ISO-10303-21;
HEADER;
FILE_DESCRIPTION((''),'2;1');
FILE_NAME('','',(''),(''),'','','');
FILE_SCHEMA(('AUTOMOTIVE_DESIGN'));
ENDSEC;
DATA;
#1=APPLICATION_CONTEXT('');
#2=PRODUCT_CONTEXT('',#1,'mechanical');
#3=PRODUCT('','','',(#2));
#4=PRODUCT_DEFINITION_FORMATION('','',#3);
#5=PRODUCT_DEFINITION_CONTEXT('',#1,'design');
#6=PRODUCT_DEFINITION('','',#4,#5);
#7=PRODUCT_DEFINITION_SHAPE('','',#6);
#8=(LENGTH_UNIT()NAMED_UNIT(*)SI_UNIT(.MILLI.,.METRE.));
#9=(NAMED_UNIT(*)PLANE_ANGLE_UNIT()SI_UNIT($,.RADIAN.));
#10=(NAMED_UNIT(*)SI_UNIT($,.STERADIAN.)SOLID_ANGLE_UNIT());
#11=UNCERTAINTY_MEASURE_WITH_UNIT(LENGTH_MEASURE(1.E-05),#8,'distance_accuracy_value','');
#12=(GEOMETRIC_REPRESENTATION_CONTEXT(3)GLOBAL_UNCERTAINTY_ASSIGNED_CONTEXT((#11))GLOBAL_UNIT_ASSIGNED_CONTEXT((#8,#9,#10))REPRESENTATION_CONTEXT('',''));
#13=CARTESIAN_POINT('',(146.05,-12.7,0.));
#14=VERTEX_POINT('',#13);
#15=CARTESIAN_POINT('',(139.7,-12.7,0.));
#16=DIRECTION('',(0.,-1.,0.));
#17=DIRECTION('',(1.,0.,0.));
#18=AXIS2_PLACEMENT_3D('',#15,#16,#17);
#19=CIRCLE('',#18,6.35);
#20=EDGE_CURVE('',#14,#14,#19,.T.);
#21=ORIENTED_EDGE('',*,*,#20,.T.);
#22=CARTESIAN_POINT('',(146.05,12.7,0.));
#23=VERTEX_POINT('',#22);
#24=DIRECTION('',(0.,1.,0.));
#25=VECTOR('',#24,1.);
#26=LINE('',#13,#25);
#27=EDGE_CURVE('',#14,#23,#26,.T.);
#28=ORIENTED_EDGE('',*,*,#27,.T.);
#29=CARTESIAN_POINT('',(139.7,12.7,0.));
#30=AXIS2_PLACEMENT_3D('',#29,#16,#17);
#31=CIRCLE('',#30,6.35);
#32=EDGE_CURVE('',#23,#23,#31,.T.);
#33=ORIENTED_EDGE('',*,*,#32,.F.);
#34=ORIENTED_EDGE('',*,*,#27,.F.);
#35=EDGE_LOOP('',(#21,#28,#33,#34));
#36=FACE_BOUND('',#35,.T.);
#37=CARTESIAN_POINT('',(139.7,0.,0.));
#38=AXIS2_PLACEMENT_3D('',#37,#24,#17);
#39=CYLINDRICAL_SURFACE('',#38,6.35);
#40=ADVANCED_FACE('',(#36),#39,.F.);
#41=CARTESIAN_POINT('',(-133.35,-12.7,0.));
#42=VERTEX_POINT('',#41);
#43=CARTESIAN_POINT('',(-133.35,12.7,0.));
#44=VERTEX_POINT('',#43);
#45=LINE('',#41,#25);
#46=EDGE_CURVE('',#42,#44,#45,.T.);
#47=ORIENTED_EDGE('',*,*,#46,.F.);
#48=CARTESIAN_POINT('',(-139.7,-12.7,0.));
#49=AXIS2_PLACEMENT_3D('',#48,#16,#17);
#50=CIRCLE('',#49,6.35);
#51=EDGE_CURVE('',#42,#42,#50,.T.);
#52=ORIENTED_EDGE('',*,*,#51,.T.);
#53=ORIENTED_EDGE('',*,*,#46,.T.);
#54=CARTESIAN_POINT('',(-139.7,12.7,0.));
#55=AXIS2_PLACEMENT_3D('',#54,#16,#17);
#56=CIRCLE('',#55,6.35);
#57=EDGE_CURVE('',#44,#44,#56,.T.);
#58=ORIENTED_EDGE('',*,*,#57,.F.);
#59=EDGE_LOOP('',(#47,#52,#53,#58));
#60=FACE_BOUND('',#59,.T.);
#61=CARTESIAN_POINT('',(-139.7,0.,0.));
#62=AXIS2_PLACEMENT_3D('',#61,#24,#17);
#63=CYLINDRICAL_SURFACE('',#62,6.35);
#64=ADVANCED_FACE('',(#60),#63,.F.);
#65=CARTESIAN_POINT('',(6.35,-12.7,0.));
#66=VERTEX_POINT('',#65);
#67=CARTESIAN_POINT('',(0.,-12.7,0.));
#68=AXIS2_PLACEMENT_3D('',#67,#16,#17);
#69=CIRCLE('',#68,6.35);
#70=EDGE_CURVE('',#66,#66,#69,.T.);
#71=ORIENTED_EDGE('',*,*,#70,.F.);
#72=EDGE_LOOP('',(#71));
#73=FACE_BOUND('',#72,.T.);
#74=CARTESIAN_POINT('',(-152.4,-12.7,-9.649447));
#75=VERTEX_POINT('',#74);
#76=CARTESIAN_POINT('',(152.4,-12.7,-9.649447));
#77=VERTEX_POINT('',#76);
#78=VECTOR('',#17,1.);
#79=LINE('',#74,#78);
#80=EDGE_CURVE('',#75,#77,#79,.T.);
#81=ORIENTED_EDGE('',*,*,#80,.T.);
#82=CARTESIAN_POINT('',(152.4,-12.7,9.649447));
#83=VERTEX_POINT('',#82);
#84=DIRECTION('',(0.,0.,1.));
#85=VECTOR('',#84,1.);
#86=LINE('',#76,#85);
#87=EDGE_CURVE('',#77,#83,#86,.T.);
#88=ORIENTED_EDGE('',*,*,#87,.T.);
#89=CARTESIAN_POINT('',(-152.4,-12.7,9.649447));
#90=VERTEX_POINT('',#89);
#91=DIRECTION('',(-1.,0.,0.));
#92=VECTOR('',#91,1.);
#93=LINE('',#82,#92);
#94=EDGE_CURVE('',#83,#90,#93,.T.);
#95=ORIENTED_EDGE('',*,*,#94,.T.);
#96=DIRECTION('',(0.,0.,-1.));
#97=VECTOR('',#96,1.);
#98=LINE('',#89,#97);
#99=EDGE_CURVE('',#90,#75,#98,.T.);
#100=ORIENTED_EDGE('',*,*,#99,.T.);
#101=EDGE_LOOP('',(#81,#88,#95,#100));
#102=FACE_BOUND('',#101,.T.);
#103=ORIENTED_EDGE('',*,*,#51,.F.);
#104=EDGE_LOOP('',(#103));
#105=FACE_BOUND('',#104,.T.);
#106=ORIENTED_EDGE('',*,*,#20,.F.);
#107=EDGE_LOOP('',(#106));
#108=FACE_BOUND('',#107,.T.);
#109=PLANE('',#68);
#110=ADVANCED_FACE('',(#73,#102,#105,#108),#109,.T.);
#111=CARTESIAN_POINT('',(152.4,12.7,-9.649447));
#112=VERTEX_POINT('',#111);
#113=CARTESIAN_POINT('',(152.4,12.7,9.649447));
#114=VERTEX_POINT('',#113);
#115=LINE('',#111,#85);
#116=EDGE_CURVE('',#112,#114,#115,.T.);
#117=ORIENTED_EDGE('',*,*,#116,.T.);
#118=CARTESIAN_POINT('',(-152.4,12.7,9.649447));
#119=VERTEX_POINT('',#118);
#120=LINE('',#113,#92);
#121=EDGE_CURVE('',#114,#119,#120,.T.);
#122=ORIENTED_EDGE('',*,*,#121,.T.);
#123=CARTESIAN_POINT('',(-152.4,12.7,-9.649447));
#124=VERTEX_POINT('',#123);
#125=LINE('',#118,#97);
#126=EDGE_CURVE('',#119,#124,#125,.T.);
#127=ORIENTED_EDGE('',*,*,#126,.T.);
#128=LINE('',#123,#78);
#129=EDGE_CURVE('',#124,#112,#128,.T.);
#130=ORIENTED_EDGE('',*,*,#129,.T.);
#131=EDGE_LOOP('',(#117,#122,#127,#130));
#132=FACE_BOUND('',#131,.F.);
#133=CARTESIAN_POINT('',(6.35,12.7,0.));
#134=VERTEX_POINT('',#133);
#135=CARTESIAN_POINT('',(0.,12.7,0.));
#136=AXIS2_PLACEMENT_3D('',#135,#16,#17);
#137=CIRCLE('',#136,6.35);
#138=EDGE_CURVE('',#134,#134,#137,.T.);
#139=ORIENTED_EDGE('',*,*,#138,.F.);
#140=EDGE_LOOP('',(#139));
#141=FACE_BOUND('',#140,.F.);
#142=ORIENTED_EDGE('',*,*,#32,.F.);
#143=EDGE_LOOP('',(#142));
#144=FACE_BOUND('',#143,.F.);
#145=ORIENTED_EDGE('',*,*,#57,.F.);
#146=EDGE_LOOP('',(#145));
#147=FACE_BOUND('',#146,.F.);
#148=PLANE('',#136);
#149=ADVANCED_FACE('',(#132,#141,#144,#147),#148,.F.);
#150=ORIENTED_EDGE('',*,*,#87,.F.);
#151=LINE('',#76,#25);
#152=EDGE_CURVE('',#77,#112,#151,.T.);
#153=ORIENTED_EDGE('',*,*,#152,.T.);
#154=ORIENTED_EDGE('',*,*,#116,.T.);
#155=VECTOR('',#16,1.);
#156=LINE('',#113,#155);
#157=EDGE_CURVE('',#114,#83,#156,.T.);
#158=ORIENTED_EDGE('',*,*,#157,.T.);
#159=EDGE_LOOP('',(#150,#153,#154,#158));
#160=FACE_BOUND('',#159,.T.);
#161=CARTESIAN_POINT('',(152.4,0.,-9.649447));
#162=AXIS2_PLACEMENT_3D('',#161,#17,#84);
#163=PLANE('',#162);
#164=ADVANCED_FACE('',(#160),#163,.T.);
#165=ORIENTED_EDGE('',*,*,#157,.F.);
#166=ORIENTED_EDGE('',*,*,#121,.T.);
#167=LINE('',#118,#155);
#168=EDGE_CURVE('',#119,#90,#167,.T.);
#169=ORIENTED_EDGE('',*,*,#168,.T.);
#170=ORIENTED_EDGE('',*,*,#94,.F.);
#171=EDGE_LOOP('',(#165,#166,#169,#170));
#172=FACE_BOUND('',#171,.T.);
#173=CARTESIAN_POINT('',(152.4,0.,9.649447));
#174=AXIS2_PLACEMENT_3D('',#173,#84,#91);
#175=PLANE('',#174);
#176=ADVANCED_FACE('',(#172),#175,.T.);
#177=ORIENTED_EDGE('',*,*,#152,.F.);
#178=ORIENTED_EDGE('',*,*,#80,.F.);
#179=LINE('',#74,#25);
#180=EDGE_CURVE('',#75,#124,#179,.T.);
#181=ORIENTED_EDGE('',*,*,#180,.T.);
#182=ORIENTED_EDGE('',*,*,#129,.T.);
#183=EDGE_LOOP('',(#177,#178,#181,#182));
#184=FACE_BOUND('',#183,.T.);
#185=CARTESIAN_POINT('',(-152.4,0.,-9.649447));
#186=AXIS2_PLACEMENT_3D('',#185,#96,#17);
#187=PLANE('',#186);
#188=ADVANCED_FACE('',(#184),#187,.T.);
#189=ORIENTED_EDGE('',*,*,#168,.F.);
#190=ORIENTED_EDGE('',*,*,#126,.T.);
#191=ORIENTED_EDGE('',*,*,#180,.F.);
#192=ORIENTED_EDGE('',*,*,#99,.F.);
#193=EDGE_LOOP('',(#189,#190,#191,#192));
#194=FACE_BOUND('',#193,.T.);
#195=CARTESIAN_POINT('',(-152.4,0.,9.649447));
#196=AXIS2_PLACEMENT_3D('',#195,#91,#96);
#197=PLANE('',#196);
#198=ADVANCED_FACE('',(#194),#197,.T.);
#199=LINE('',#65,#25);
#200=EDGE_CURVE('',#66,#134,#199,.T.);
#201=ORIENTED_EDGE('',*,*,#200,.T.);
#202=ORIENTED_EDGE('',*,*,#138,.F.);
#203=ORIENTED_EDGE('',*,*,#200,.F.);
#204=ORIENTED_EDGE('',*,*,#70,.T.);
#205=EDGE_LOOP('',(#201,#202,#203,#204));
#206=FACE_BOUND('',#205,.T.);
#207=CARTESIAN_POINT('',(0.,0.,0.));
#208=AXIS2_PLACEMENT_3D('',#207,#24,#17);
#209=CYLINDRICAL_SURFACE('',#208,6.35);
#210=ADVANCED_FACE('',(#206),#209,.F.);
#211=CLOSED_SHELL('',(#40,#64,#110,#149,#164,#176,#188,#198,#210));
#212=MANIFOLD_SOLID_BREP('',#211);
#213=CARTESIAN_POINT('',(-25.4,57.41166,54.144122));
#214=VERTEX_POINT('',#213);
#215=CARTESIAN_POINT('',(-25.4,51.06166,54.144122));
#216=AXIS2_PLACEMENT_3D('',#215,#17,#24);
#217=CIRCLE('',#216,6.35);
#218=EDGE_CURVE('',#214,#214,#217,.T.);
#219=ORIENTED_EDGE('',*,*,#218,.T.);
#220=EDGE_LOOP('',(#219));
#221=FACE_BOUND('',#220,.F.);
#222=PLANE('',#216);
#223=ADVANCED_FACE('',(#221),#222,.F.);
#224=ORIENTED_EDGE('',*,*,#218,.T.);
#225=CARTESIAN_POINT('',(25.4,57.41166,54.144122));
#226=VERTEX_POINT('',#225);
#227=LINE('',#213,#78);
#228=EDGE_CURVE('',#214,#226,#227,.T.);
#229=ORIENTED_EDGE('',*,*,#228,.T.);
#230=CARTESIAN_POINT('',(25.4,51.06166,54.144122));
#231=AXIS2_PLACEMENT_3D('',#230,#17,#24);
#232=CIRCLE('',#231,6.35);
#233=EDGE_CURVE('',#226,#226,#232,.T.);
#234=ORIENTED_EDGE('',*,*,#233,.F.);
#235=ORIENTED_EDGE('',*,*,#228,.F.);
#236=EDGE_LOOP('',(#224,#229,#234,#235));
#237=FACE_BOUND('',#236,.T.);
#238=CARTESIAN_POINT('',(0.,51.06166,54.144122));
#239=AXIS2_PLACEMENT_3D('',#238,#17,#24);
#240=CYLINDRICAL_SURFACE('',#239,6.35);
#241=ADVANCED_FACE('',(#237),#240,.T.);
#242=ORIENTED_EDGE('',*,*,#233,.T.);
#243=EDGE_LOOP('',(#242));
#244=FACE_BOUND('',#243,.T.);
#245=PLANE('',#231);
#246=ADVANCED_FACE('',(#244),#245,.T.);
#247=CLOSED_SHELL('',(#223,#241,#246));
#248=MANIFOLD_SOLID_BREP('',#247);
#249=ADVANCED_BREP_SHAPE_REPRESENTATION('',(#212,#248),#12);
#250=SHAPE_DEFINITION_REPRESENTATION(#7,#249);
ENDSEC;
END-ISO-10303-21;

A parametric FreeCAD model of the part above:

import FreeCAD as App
import Part
import Sketcher

V = App.Vector
Q = App.Units.Quantity

doc = App.newDocument("Part")
body = doc.addObject("PartDesign::Body", "Body")

# Sketch on XZ plane
sketch1 = body.newObject("Sketcher::SketchObject", "Sketch")
sketch1.AttachmentSupport = (doc.getObject("XZ_Plane"), [""])
sketch1.MapMode = "FlatFace"
sketch1.addGeometry(Part.LineSegment(V(152, -10, 0), V(152, 10, 0)), False)
sketch1.addGeometry(Part.LineSegment(V(152, 10, 0), V(-152, 10, 0)), False)
sketch1.addGeometry(Part.LineSegment(V(-152, 10, 0), V(-152, -10, 0)), False)
sketch1.addGeometry(Part.LineSegment(V(-152, -10, 0), V(152, -10, 0)), False)
sketch1.addGeometry(Part.Circle(V(-140, 0, 0), V(0, 0, 1), 6), False)
sketch1.addGeometry(Part.Circle(V(0, 0, 0), V(0, 0, 1), 6), False)
sketch1.addGeometry(Part.Circle(V(140, 0, 0), V(0, 0, 1), 6), False)
sketch1.addConstraint(Sketcher.Constraint("Coincident", 0, 2, 1, 1))
sketch1.addConstraint(Sketcher.Constraint("Coincident", 1, 2, 2, 1))
sketch1.addConstraint(Sketcher.Constraint("Coincident", 2, 2, 3, 1))
sketch1.addConstraint(Sketcher.Constraint("Coincident", 3, 2, 0, 1))
sketch1.addConstraint(Sketcher.Constraint("Vertical", 0))
sketch1.addConstraint(Sketcher.Constraint("Horizontal", 1))
sketch1.addConstraint(Sketcher.Constraint("Vertical", 2))
sketch1.addConstraint(Sketcher.Constraint("Horizontal", 3))
sketch1.addConstraint(Sketcher.Constraint("Coincident", 5, 3, -1, 1))
sketch1.addConstraint(Sketcher.Constraint("Equal", 4, 5))
sketch1.addConstraint(Sketcher.Constraint("Equal", 5, 6))
sketch1.addConstraint(Sketcher.Constraint("Symmetric", 4, 3, 6, 3, -1, 1))
sketch1.addConstraint(Sketcher.Constraint("Symmetric", 0, 2, 2, 2, -1, 1))
sketch1.addConstraint(Sketcher.Constraint("PointOnObject", 4, 3, -1))
sketch1.addConstraint(Sketcher.Constraint("Diameter", 4, Q("0.5 in")))
sketch1.addConstraint(Sketcher.Constraint("DistanceX", 1, 2, 1, 1, Q("12 in")))
sketch1.addConstraint(Sketcher.Constraint("DistanceX", 4, 3, 6, 3, Q("11 in")))
sketch1.addConstraint(Sketcher.Constraint("DistanceY", 0, 1, 0, 2, Q("19.298894 mm")))
pad1 = body.newObject("PartDesign::Pad", "Pad")
pad1.Profile = sketch1
pad1.Length = Q("1 in")
pad1.Midplane = True
body2 = doc.addObject("PartDesign::Body", "Body001")

# Sketch on YZ plane
sketch2 = body2.newObject("Sketcher::SketchObject", "Sketch001")
sketch2.AttachmentSupport = (doc.getObject("YZ_Plane001"), [""])
sketch2.MapMode = "FlatFace"
sketch2.addGeometry(Part.Circle(V(51, 54, 0), V(0, 0, 1), 6), False)
sketch2.addConstraint(Sketcher.Constraint("Diameter", 0, Q("0.5 in")))
sketch2.addConstraint(Sketcher.Constraint("DistanceX", -1, 1, 0, 3, Q("51.06166 mm")))
sketch2.addConstraint(Sketcher.Constraint("DistanceY", -1, 1, 0, 3, Q("54.144122 mm")))
pad2 = body2.newObject("PartDesign::Pad", "Pad001")
pad2.Profile = sketch2
pad2.Length = Q("2 in")
pad2.Midplane = True

doc.recompute()
